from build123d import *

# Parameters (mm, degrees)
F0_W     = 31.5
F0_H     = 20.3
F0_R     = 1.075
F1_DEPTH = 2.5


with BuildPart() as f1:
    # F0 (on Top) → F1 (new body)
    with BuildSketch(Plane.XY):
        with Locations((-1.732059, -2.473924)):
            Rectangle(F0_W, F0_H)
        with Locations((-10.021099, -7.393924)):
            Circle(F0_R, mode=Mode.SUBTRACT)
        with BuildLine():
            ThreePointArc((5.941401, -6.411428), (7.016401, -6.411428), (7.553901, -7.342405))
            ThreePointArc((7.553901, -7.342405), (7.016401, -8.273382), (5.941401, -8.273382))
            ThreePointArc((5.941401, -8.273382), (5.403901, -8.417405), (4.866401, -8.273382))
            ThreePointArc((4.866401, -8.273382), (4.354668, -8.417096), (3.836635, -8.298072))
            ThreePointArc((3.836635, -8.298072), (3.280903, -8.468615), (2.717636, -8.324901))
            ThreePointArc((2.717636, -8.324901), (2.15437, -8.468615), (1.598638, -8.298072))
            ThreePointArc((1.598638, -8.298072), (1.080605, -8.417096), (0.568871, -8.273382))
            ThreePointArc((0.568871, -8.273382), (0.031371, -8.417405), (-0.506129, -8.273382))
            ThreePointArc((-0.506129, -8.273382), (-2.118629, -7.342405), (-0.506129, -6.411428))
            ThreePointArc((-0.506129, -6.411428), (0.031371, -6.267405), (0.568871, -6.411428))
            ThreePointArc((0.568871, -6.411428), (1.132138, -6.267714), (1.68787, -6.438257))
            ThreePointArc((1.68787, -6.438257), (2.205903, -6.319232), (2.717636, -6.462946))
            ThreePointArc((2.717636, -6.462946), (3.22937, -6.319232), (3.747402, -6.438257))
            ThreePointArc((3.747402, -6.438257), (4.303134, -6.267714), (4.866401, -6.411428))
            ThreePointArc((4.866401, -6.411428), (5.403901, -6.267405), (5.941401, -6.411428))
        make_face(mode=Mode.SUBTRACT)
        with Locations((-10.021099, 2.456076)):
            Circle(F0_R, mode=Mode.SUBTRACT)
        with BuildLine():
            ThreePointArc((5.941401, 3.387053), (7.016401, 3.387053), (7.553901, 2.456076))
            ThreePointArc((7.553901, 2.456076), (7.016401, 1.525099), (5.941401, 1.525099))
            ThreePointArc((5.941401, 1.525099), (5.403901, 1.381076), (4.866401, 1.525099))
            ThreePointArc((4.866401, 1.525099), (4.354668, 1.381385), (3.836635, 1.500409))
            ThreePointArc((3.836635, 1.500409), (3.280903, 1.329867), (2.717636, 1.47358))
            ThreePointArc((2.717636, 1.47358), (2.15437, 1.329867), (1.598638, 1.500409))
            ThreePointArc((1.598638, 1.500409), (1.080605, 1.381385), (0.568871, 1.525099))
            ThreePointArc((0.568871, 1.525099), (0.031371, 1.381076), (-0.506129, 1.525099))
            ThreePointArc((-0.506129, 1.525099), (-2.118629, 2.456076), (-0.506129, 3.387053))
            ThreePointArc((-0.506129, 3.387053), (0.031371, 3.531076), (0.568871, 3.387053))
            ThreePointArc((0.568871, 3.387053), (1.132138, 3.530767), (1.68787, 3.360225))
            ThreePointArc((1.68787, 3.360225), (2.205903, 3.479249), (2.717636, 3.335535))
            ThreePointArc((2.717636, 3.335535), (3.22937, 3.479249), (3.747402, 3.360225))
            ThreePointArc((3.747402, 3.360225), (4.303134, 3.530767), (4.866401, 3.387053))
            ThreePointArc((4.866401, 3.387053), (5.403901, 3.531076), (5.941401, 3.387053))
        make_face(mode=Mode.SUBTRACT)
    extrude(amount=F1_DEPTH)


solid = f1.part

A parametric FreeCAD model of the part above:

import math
import FreeCAD as App
import Part
import Sketcher

V = App.Vector

doc = App.newDocument("Part")
body = doc.addObject("PartDesign::Body", "Body")

# Sketch on XY plane
sketch1 = body.newObject("Sketcher::SketchObject", "Sketch")
sketch1.AttachmentSupport = (doc.getObject("XY_Plane"), [""])
sketch1.MapMode = "FlatFace"
sketch1.addGeometry([
    Part.LineSegment(V(-17.5, 7.7, 0), V(-17.5, -12.6, 0)),  # 0
    Part.LineSegment(V(-17.5, -12.6, 0), V(14, -12.6, 0)),  # 1
    Part.LineSegment(V(14, -12.6, 0), V(14, 7.7, 0)),  # 2
    Part.LineSegment(V(14, 7.7, 0), V(-17.5, 7.7, 0)),  # 3
    Part.Circle(V(-10, -7.4, 0), V(0, 0, 1), 1.1),  # 4
    Part.ArcOfCircle(Part.Circle(V(5.4, -7.3, 0), V(0, 0, 1), 1.1), math.radians(60), math.radians(120)),  # 5
    Part.ArcOfCircle(Part.Circle(V(6.5, -7.3, 0), V(0, 0, 1), 1.1), math.radians(0), math.radians(120)),  # 6
    Part.ArcOfCircle(Part.Circle(V(6.5, -7.3, 0), V(0, 0, 1), 1.1), math.radians(-120), math.radians(0)),  # 7
    Part.ArcOfCircle(Part.Circle(V(5.4, -7.3, 0), V(0, 0, 1), 1.1), math.radians(-120), math.radians(-60)),  # 8
    Part.ArcOfCircle(Part.Circle(V(4.3, -7.3, 0), V(0, 0, 1), 1.1), math.radians(-117), math.radians(-60)),  # 9
    Part.ArcOfCircle(Part.Circle(V(3.3, -7.4, 0), V(0, 0, 1), 1.1), math.radians(-120), math.radians(-57)),  # 10
    Part.ArcOfCircle(Part.Circle(V(2.2, -7.4, 0), V(0, 0, 1), 1.1), math.radians(-123), math.radians(-60)),  # 11
    Part.ArcOfCircle(Part.Circle(V(1.1, -7.3, 0), V(0, 0, 1), 1.1), math.radians(-120), math.radians(-63)),  # 12
    Part.ArcOfCircle(Part.Circle(V(0, -7.3, 0), V(0, 0, 1), 1.1), math.radians(-120), math.radians(-60)),  # 13
    Part.ArcOfCircle(Part.Circle(V(-1, -7.3, 0), V(0, 0, 1), 1.1), math.radians(60), math.radians(300)),  # 14
    Part.ArcOfCircle(Part.Circle(V(0, -7.3, 0), V(0, 0, 1), 1.1), math.radians(60), math.radians(120)),  # 15
    Part.ArcOfCircle(Part.Circle(V(1.1, -7.3, 0), V(0, 0, 1), 1.1), math.radians(57), math.radians(120)),  # 16
    Part.ArcOfCircle(Part.Circle(V(2.2, -7.4, 0), V(0, 0, 1), 1.1), math.radians(60), math.radians(117)),  # 17
    Part.ArcOfCircle(Part.Circle(V(3.3, -7.4, 0), V(0, 0, 1), 1.1), math.radians(63), math.radians(120)),  # 18
    Part.ArcOfCircle(Part.Circle(V(4.3, -7.3, 0), V(0, 0, 1), 1.1), math.radians(60), math.radians(123)),  # 19
    Part.Circle(V(-10, 2.5, 0), V(0, 0, 1), 1.1),  # 20
    Part.ArcOfCircle(Part.Circle(V(5.4, 2.5, 0), V(0, 0, 1), 1.1), math.radians(60), math.radians(120)),  # 21
    Part.ArcOfCircle(Part.Circle(V(6.5, 2.5, 0), V(0, 0, 1), 1.1), math.radians(0), math.radians(120)),  # 22
    Part.ArcOfCircle(Part.Circle(V(6.5, 2.5, 0), V(0, 0, 1), 1.1), math.radians(-120), math.radians(0)),  # 23
    Part.ArcOfCircle(Part.Circle(V(5.4, 2.5, 0), V(0, 0, 1), 1.1), math.radians(-120), math.radians(-60)),  # 24
    Part.ArcOfCircle(Part.Circle(V(4.3, 2.5, 0), V(0, 0, 1), 1.1), math.radians(-117), math.radians(-60)),  # 25
    Part.ArcOfCircle(Part.Circle(V(3.3, 2.4, 0), V(0, 0, 1), 1.1), math.radians(-120), math.radians(-57)),  # 26
    Part.ArcOfCircle(Part.Circle(V(2.2, 2.4, 0), V(0, 0, 1), 1.1), math.radians(-123), math.radians(-60)),  # 27
    Part.ArcOfCircle(Part.Circle(V(1.1, 2.5, 0), V(0, 0, 1), 1.1), math.radians(-120), math.radians(-63)),  # 28
    Part.ArcOfCircle(Part.Circle(V(0, 2.5, 0), V(0, 0, 1), 1.1), math.radians(-120), math.radians(-60)),  # 29
    Part.ArcOfCircle(Part.Circle(V(-1, 2.5, 0), V(0, 0, 1), 1.1), math.radians(60), math.radians(300)),  # 30
    Part.ArcOfCircle(Part.Circle(V(0, 2.5, 0), V(0, 0, 1), 1.1), math.radians(60), math.radians(120)),  # 31
    Part.ArcOfCircle(Part.Circle(V(1.1, 2.5, 0), V(0, 0, 1), 1.1), math.radians(57), math.radians(120)),  # 32
    Part.ArcOfCircle(Part.Circle(V(2.2, 2.4, 0), V(0, 0, 1), 1.1), math.radians(60), math.radians(117)),  # 33
    Part.ArcOfCircle(Part.Circle(V(3.3, 2.4, 0), V(0, 0, 1), 1.1), math.radians(63), math.radians(120)),  # 34
    Part.ArcOfCircle(Part.Circle(V(4.3, 2.5, 0), V(0, 0, 1), 1.1), math.radians(60), math.radians(123)),  # 35
], False)
sketch1.addConstraint([
    Sketcher.Constraint("Coincident", 0, 2, 1, 1),
    Sketcher.Constraint("Coincident", 1, 2, 2, 1),
    Sketcher.Constraint("Coincident", 2, 2, 3, 1),
    Sketcher.Constraint("Coincident", 3, 2, 0, 1),
    Sketcher.Constraint("Coincident", 5, 1, 6, 2),
    Sketcher.Constraint("Tangent", 6, 1, 7, 2),
    Sketcher.Constraint("Coincident", 7, 1, 8, 2),
    Sketcher.Constraint("Coincident", 8, 1, 9, 2),
    Sketcher.Constraint("Coincident", 9, 1, 10, 2),
    Sketcher.Constraint("Coincident", 10, 1, 11, 2),
    Sketcher.Constraint("Coincident", 11, 1, 12, 2),
    Sketcher.Constraint("Coincident", 12, 1, 13, 2),
    Sketcher.Constraint("Coincident", 13, 1, 14, 2),
    Sketcher.Constraint("Coincident", 14, 1, 15, 2),
    Sketcher.Constraint("Coincident", 15, 1, 16, 2),
    Sketcher.Constraint("Coincident", 16, 1, 17, 2),
    Sketcher.Constraint("Coincident", 17, 1, 18, 2),
    Sketcher.Constraint("Coincident", 18, 1, 19, 2),
    Sketcher.Constraint("Coincident", 19, 1, 5, 2),
    Sketcher.Constraint("Coincident", 21, 1, 22, 2),
    Sketcher.Constraint("Tangent", 22, 1, 23, 2),
    Sketcher.Constraint("Coincident", 23, 1, 24, 2),
    Sketcher.Constraint("Coincident", 24, 1, 25, 2),
    Sketcher.Constraint("Coincident", 25, 1, 26, 2),
    Sketcher.Constraint("Coincident", 26, 1, 27, 2),
    Sketcher.Constraint("Coincident", 27, 1, 28, 2),
    Sketcher.Constraint("Coincident", 28, 1, 29, 2),
    Sketcher.Constraint("Coincident", 29, 1, 30, 2),
    Sketcher.Constraint("Coincident", 30, 1, 31, 2),
    Sketcher.Constraint("Coincident", 31, 1, 32, 2),
    Sketcher.Constraint("Coincident", 32, 1, 33, 2),
    Sketcher.Constraint("Coincident", 33, 1, 34, 2),
    Sketcher.Constraint("Coincident", 34, 1, 35, 2),
    Sketcher.Constraint("Coincident", 35, 1, 21, 2),
    Sketcher.Constraint("Vertical", 0),
    Sketcher.Constraint("Horizontal", 1),
    Sketcher.Constraint("Vertical", 2),
    Sketcher.Constraint("Horizontal", 3),
    Sketcher.Constraint("Coincident", 8, 3, 5, 3),
    Sketcher.Constraint("Coincident", 15, 3, 13, 3),
    Sketcher.Constraint("Coincident", 16, 3, 12, 3),
    Sketcher.Constraint("Coincident", 17, 3, 11, 3),
    Sketcher.Constraint("Coincident", 18, 3, 10, 3),
    Sketcher.Constraint("Coincident", 19, 3, 9, 3),
    Sketcher.Constraint("Coincident", 24, 3, 21, 3),
    Sketcher.Constraint("Coincident", 31, 3, 29, 3),
    Sketcher.Constraint("Coincident", 32, 3, 28, 3),
    Sketcher.Constraint("Coincident", 33, 3, 27, 3),
    Sketcher.Constraint("Coincident", 34, 3, 26, 3),
    Sketcher.Constraint("Coincident", 35, 3, 25, 3),
    Sketcher.Constraint("Equal", 4, 5),
    Sketcher.Constraint("Equal", 5, 6),
    Sketcher.Constraint("Equal", 6, 7),
    Sketcher.Constraint("Equal", 7, 8),
    Sketcher.Constraint("Equal", 7, 9),
    Sketcher.Constraint("Equal", 9, 10),
    Sketcher.Constraint("Equal", 10, 11),
    Sketcher.Constraint("Equal", 11, 13),
    Sketcher.Constraint("Equal", 13, 14),
    Sketcher.Constraint("Equal", 14, 15),
    Sketcher.Constraint("Equal", 15, 16),
    Sketcher.Constraint("Equal", 15, 17),
    Sketcher.Constraint("Equal", 17, 18),
    Sketcher.Constraint("Equal", 16, 19),
    Sketcher.Constraint("Equal", 19, 20),
    Sketcher.Constraint("Equal", 20, 21),
    Sketcher.Constraint("Equal", 21, 22),
    Sketcher.Constraint("Equal", 22, 23),
    Sketcher.Constraint("Equal", 23, 24),
    Sketcher.Constraint("Equal", 23, 25),
    Sketcher.Constraint("Equal", 26, 27),
    Sketcher.Constraint("Equal", 27, 28),
    Sketcher.Constraint("Equal", 24, 29),
    Sketcher.Constraint("Equal", 29, 30),
    Sketcher.Constraint("Equal", 30, 31),
    Sketcher.Constraint("Equal", 28, 32),
    Sketcher.Constraint("Equal", 32, 33),
    Sketcher.Constraint("Equal", 33, 34),
    Sketcher.Constraint("Equal", 34, 35),
    Sketcher.Constraint("Horizontal", 5, 3, 7, 3),
    Sketcher.Constraint("Horizontal", 7, 3, 9, 3),
    Sketcher.Constraint("Horizontal", 4, 3, 10, 3),
    Sketcher.Constraint("Horizontal", 10, 3, 11, 3),
    Sketcher.Constraint("Horizontal", 5, 3, 12, 3),
    Sketcher.Constraint("Horizontal", 8, 3, 13, 3),
    Sketcher.Constraint("Horizontal", 13, 3, 14, 3),
    Sketcher.Constraint("Horizontal", 20, 3, 21, 3),
    Sketcher.Constraint("Horizontal", 20, 3, 22, 3),
    Sketcher.Constraint("Horizontal", 23, 3, 25, 3),
    Sketcher.Constraint("Horizontal", 26, 3, 27, 3),
    Sketcher.Constraint("Horizontal", 21, 3, 28, 3),
    Sketcher.Constraint("Horizontal", 24, 3, 29, 3),
    Sketcher.Constraint("Horizontal", 29, 3, 30, 3),
    Sketcher.Constraint("Horizontal", 19, 3, 6, 1),
    Sketcher.Constraint("Horizontal", 7, 1, 8, 1),
    Sketcher.Constraint("Horizontal", 9, 1, 11, 1),
    Sketcher.Constraint("Horizontal", 8, 1, 12, 1),
    Sketcher.Constraint("Horizontal", 12, 1, 13, 1),
    Sketcher.Constraint("Horizontal", 14, 1, 15, 1),
    Sketcher.Constraint("Horizontal", 31, 3, 22, 1),
    Sketcher.Constraint("Horizontal", 23, 1, 24, 1),
    Sketcher.Constraint("Horizontal", 25, 1, 27, 1),
    Sketcher.Constraint("Horizontal", 24, 1, 28, 1),
    Sketcher.Constraint("Horizontal", 28, 1, 29, 1),
    Sketcher.Constraint("Horizontal", 32, 1, 34, 1),
    Sketcher.Constraint("Vertical", 4, 3, 20, 3),
    Sketcher.Constraint("Vertical", 8, 3, 21, 3),
    Sketcher.Constraint("Vertical", 7, 3, 22, 3),
    Sketcher.Constraint("Vertical", 18, 3, 26, 3),
    Sketcher.Constraint("Vertical", 17, 3, 27, 3),
    Sketcher.Constraint("Vertical", 9, 1, 25, 1),
    Sketcher.Constraint("Diameter", 4, 2.15),
    Sketcher.Constraint("DistanceX", 1, 1, 1, 2, 31.5),
    Sketcher.Constraint("DistanceY", 0, 2, 0, 1, 20.3),
    Sketcher.Constraint("DistanceX", 4, 3, -1, 1, 10.021099),
    Sketcher.Constraint("DistanceX", -1, 1, 5, 3, 5.403901),
    Sketcher.Constraint("DistanceX", -1, 1, 6, 3, 6.478901),
    Sketcher.Constraint("DistanceY", 10, 1, -1, 1, 8.324901),
    Sketcher.Constraint("DistanceX", -1, 1, 18, 1, 3.747402),
    Sketcher.Constraint("DistanceY", -1, 1, 23, 1, 1.525099),
    Sketcher.Constraint("DistanceX", -1, 1, 12, 3, 1.106372),
    Sketcher.Constraint("DistanceY", 17, 3, -1, 1, 7.39392),
    Sketcher.Constraint("DistanceX", 0, 2, -1, 1, 17.482059),
    Sketcher.Constraint("DistanceY", 0, 2, -1, 1, 12.623924),
])
pad1 = body.newObject("PartDesign::Pad", "Pad")
pad1.Profile = sketch1
pad1.Length = 2.5

doc.recompute()
